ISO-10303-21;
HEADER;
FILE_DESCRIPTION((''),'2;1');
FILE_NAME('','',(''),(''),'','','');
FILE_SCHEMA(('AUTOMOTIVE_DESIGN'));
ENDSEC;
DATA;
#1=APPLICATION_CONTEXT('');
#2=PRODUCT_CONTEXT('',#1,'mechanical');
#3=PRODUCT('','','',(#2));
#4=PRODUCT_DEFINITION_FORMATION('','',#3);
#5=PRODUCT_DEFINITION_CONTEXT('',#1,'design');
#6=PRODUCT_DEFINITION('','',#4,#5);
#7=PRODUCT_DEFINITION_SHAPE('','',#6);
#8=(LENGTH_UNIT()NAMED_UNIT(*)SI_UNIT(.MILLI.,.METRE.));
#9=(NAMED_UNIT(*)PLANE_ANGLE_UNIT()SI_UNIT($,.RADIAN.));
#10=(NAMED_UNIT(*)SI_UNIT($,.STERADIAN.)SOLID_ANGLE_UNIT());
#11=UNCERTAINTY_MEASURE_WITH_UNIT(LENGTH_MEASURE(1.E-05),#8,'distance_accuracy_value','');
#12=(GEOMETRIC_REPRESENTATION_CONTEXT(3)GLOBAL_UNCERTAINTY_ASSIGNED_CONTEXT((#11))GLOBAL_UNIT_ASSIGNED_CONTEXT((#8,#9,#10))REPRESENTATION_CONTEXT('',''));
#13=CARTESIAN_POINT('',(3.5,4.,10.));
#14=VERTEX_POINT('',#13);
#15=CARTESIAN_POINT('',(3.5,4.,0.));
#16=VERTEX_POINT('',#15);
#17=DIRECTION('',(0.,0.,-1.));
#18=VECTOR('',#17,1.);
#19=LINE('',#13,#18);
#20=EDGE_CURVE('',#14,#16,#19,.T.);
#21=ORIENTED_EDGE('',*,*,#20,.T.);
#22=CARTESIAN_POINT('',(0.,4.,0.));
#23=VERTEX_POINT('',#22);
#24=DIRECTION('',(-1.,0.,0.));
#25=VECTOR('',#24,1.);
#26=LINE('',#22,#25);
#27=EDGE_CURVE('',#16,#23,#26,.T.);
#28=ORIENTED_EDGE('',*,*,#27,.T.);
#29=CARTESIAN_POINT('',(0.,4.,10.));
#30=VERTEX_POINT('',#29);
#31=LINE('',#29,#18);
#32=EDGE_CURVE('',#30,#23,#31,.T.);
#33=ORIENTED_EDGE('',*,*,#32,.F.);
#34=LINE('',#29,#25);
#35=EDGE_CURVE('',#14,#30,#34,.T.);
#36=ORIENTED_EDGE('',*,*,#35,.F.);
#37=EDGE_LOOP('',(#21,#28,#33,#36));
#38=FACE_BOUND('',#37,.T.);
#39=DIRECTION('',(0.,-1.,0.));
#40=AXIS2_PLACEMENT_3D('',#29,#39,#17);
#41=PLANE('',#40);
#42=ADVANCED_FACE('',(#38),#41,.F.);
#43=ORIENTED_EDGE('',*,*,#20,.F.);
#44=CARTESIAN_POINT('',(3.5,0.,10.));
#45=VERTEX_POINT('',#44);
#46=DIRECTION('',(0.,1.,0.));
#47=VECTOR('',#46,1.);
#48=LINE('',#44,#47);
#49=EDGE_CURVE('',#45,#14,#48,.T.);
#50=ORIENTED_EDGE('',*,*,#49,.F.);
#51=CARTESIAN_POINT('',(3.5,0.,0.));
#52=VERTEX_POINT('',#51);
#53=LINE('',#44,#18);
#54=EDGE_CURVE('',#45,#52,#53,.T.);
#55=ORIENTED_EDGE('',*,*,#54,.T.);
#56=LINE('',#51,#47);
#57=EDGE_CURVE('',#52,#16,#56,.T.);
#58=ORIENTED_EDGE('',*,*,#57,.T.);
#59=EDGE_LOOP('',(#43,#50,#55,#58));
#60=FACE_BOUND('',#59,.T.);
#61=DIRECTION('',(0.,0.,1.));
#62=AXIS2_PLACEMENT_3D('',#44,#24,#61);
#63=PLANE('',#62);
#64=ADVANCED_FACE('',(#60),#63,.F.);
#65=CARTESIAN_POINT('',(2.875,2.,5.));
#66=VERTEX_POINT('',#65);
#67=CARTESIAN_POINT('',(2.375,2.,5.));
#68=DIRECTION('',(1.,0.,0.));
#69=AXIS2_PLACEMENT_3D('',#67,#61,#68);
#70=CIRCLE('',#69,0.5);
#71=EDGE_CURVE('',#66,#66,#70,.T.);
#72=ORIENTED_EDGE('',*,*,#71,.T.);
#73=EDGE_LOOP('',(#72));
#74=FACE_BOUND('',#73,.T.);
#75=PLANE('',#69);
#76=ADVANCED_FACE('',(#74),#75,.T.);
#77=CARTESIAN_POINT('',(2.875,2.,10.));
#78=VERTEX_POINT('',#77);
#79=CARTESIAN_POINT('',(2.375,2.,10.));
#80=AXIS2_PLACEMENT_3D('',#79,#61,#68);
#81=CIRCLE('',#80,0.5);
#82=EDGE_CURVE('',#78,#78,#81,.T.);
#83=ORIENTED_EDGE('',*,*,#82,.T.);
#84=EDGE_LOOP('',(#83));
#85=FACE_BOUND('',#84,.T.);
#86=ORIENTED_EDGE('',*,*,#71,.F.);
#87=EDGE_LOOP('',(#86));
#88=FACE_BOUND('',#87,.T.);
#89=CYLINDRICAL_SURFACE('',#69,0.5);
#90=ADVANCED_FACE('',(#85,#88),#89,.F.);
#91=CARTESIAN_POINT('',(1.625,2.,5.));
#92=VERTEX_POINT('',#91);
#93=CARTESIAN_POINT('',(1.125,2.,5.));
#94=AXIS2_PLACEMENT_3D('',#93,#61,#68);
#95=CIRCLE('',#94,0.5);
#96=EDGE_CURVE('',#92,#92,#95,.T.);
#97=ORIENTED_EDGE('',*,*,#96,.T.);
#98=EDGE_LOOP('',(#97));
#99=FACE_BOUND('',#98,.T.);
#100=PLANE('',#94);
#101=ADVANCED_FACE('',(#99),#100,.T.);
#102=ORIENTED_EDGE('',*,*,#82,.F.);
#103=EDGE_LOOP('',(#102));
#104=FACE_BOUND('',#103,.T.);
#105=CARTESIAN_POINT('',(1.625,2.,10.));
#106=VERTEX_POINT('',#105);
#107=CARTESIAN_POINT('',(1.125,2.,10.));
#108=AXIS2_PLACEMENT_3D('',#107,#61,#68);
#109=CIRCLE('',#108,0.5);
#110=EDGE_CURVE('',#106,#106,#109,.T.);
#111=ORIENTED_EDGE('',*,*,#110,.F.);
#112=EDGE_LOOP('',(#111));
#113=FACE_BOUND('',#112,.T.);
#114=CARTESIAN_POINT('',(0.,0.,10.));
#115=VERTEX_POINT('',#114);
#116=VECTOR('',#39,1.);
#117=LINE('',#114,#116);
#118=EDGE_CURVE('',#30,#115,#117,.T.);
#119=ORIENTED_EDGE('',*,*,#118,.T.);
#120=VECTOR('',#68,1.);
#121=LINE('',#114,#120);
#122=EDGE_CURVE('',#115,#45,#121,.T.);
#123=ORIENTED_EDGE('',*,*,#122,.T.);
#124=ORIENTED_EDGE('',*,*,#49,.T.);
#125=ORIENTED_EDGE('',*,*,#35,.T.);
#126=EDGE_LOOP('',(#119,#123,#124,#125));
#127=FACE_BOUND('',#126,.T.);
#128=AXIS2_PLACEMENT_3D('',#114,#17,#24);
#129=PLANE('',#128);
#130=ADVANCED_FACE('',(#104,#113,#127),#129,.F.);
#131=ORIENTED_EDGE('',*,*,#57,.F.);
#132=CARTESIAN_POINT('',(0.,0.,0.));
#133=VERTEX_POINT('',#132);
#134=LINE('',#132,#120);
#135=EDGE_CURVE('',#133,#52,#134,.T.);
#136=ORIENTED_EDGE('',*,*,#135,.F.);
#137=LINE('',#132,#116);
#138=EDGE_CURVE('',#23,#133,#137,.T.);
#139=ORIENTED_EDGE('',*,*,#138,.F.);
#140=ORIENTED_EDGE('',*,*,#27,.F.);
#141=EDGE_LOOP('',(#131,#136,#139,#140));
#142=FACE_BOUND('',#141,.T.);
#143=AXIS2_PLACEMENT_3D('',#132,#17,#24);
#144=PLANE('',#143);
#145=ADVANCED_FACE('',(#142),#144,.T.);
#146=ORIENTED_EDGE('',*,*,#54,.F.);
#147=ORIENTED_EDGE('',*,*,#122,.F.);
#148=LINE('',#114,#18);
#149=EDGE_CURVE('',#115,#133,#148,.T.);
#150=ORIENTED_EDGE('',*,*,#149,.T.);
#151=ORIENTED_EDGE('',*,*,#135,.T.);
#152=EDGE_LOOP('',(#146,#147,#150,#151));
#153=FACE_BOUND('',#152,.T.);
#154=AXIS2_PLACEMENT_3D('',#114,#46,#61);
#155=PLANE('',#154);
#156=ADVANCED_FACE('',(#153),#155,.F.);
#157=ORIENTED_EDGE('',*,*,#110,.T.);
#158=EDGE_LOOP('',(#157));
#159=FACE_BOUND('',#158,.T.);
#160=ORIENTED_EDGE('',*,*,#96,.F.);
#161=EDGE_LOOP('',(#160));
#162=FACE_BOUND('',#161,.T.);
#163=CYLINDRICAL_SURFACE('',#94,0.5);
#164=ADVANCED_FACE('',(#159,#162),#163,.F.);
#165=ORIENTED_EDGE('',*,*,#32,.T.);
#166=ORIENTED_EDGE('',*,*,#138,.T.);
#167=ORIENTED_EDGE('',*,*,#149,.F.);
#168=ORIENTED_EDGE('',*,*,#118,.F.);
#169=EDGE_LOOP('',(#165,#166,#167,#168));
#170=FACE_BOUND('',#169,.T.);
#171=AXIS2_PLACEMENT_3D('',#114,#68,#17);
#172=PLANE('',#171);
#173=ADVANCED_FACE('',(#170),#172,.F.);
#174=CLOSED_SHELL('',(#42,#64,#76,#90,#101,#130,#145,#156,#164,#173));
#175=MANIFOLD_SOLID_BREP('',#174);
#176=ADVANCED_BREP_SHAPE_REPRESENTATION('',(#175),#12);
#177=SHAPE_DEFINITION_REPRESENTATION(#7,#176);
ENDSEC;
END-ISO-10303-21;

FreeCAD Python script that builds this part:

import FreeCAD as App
import Part
import Sketcher
Q = App.Units.Quantity


def add_polygon(sketch, points):
    """Adds a closed chain of lines whose ends are joined by coincident constraints."""
    first, n = sketch.GeometryCount, len(points)
    for a, b in zip(points, points[1:] + points[:1]):
        sketch.addGeometry(Part.LineSegment(App.Vector(*a, 0), App.Vector(*b, 0)), False)
    for i in range(n):
        sketch.addConstraint(Sketcher.Constraint("Coincident", first + i, 2, first + (i + 1) % n, 1))

doc = App.newDocument("Part")
params = doc.addObject("Spreadsheet::Sheet", "Params")
for row, (alias, value) in enumerate([
    ("sketch1_height", "4 mm"),
    ("sketch1_width", "3.5 mm"),
    ("pad1_length", "10 mm"),
    ("sketch2_diameter", "1 mm"),
    ("pocket1_length", "5 mm"),
], start=1):
    params.set(f"A{row}", alias)
    params.set(f"B{row}", "=" + value)
    params.setAlias(f"B{row}", alias)

body = doc.addObject("PartDesign::Body", "Body")

# Sketch on XY plane
sketch1 = doc.addObject("Sketcher::SketchObject", "Sketch")
body.addObject(sketch1)
sketch1.AttachmentSupport = (doc.XY_Plane, [""])
sketch1.MapMode = "FlatFace"
add_polygon(sketch1, [(0, 4), (0, 0), (3.5, 0), (3.5, 4)])  # lines 0-3
sketch1.addConstraint(Sketcher.Constraint("Vertical", 0))
sketch1.addConstraint(Sketcher.Constraint("Horizontal", 1))
sketch1.addConstraint(Sketcher.Constraint("Vertical", 2))
sketch1.addConstraint(Sketcher.Constraint("Horizontal", 3))
sketch1.addConstraint(Sketcher.Constraint("Coincident", 0, 2, -1, 1))
sketch1.addConstraint(Sketcher.Constraint("DistanceY", 0, 2, 0, 1, Q("4 mm")))
sketch1.addConstraint(Sketcher.Constraint("DistanceX", 1, 1, 1, 2, Q("3.5 mm")))
sketch1.setExpression("Constraints[9]", "Params.sketch1_height")
sketch1.setExpression("Constraints[10]", "Params.sketch1_width")
pad1 = doc.addObject("PartDesign::Pad", "Pad")
body.addObject(pad1)
pad1.Profile = sketch1
pad1.setExpression("Length", "Params.pad1_length")

# Sketch on XY plane
sketch2 = doc.addObject("Sketcher::SketchObject", "Sketch001")
body.addObject(sketch2)
sketch2.AttachmentSupport = (doc.XY_Plane, [""])
sketch2.MapMode = "FlatFace"
sketch2.AttachmentOffset = App.Placement(App.Vector(0, 0, 10), App.Rotation())
sketch2.addGeometry(Part.Circle(App.Vector(1.1, 2, 0), App.Vector(0, 0, 1), 0.5), False)
sketch2.addGeometry(Part.Circle(App.Vector(2.4, 2, 0), App.Vector(0, 0, 1), 0.5), False)
sketch2.addConstraint(Sketcher.Constraint("Equal", 0, 1))
sketch2.addConstraint(Sketcher.Constraint("Horizontal", 0, 3, 1, 3))
sketch2.addConstraint(Sketcher.Constraint("Diameter", 0, Q("1 mm")))
sketch2.addConstraint(Sketcher.Constraint("DistanceY", -1, 1, 0, 3, Q("2 mm")))
sketch2.addConstraint(Sketcher.Constraint("DistanceX", 0, 3, 1, 3, Q("1.25 mm")))
sketch2.addConstraint(Sketcher.Constraint("DistanceX", -1, 1, 0, 3, Q("1.125 mm")))
sketch2.setExpression("Constraints[2]", "Params.sketch2_diameter")
pocket1 = doc.addObject("PartDesign::Pocket", "Pocket")
body.addObject(pocket1)
pocket1.Profile = sketch2
pocket1.setExpression("Length", "Params.pocket1_length")

doc.recompute()
